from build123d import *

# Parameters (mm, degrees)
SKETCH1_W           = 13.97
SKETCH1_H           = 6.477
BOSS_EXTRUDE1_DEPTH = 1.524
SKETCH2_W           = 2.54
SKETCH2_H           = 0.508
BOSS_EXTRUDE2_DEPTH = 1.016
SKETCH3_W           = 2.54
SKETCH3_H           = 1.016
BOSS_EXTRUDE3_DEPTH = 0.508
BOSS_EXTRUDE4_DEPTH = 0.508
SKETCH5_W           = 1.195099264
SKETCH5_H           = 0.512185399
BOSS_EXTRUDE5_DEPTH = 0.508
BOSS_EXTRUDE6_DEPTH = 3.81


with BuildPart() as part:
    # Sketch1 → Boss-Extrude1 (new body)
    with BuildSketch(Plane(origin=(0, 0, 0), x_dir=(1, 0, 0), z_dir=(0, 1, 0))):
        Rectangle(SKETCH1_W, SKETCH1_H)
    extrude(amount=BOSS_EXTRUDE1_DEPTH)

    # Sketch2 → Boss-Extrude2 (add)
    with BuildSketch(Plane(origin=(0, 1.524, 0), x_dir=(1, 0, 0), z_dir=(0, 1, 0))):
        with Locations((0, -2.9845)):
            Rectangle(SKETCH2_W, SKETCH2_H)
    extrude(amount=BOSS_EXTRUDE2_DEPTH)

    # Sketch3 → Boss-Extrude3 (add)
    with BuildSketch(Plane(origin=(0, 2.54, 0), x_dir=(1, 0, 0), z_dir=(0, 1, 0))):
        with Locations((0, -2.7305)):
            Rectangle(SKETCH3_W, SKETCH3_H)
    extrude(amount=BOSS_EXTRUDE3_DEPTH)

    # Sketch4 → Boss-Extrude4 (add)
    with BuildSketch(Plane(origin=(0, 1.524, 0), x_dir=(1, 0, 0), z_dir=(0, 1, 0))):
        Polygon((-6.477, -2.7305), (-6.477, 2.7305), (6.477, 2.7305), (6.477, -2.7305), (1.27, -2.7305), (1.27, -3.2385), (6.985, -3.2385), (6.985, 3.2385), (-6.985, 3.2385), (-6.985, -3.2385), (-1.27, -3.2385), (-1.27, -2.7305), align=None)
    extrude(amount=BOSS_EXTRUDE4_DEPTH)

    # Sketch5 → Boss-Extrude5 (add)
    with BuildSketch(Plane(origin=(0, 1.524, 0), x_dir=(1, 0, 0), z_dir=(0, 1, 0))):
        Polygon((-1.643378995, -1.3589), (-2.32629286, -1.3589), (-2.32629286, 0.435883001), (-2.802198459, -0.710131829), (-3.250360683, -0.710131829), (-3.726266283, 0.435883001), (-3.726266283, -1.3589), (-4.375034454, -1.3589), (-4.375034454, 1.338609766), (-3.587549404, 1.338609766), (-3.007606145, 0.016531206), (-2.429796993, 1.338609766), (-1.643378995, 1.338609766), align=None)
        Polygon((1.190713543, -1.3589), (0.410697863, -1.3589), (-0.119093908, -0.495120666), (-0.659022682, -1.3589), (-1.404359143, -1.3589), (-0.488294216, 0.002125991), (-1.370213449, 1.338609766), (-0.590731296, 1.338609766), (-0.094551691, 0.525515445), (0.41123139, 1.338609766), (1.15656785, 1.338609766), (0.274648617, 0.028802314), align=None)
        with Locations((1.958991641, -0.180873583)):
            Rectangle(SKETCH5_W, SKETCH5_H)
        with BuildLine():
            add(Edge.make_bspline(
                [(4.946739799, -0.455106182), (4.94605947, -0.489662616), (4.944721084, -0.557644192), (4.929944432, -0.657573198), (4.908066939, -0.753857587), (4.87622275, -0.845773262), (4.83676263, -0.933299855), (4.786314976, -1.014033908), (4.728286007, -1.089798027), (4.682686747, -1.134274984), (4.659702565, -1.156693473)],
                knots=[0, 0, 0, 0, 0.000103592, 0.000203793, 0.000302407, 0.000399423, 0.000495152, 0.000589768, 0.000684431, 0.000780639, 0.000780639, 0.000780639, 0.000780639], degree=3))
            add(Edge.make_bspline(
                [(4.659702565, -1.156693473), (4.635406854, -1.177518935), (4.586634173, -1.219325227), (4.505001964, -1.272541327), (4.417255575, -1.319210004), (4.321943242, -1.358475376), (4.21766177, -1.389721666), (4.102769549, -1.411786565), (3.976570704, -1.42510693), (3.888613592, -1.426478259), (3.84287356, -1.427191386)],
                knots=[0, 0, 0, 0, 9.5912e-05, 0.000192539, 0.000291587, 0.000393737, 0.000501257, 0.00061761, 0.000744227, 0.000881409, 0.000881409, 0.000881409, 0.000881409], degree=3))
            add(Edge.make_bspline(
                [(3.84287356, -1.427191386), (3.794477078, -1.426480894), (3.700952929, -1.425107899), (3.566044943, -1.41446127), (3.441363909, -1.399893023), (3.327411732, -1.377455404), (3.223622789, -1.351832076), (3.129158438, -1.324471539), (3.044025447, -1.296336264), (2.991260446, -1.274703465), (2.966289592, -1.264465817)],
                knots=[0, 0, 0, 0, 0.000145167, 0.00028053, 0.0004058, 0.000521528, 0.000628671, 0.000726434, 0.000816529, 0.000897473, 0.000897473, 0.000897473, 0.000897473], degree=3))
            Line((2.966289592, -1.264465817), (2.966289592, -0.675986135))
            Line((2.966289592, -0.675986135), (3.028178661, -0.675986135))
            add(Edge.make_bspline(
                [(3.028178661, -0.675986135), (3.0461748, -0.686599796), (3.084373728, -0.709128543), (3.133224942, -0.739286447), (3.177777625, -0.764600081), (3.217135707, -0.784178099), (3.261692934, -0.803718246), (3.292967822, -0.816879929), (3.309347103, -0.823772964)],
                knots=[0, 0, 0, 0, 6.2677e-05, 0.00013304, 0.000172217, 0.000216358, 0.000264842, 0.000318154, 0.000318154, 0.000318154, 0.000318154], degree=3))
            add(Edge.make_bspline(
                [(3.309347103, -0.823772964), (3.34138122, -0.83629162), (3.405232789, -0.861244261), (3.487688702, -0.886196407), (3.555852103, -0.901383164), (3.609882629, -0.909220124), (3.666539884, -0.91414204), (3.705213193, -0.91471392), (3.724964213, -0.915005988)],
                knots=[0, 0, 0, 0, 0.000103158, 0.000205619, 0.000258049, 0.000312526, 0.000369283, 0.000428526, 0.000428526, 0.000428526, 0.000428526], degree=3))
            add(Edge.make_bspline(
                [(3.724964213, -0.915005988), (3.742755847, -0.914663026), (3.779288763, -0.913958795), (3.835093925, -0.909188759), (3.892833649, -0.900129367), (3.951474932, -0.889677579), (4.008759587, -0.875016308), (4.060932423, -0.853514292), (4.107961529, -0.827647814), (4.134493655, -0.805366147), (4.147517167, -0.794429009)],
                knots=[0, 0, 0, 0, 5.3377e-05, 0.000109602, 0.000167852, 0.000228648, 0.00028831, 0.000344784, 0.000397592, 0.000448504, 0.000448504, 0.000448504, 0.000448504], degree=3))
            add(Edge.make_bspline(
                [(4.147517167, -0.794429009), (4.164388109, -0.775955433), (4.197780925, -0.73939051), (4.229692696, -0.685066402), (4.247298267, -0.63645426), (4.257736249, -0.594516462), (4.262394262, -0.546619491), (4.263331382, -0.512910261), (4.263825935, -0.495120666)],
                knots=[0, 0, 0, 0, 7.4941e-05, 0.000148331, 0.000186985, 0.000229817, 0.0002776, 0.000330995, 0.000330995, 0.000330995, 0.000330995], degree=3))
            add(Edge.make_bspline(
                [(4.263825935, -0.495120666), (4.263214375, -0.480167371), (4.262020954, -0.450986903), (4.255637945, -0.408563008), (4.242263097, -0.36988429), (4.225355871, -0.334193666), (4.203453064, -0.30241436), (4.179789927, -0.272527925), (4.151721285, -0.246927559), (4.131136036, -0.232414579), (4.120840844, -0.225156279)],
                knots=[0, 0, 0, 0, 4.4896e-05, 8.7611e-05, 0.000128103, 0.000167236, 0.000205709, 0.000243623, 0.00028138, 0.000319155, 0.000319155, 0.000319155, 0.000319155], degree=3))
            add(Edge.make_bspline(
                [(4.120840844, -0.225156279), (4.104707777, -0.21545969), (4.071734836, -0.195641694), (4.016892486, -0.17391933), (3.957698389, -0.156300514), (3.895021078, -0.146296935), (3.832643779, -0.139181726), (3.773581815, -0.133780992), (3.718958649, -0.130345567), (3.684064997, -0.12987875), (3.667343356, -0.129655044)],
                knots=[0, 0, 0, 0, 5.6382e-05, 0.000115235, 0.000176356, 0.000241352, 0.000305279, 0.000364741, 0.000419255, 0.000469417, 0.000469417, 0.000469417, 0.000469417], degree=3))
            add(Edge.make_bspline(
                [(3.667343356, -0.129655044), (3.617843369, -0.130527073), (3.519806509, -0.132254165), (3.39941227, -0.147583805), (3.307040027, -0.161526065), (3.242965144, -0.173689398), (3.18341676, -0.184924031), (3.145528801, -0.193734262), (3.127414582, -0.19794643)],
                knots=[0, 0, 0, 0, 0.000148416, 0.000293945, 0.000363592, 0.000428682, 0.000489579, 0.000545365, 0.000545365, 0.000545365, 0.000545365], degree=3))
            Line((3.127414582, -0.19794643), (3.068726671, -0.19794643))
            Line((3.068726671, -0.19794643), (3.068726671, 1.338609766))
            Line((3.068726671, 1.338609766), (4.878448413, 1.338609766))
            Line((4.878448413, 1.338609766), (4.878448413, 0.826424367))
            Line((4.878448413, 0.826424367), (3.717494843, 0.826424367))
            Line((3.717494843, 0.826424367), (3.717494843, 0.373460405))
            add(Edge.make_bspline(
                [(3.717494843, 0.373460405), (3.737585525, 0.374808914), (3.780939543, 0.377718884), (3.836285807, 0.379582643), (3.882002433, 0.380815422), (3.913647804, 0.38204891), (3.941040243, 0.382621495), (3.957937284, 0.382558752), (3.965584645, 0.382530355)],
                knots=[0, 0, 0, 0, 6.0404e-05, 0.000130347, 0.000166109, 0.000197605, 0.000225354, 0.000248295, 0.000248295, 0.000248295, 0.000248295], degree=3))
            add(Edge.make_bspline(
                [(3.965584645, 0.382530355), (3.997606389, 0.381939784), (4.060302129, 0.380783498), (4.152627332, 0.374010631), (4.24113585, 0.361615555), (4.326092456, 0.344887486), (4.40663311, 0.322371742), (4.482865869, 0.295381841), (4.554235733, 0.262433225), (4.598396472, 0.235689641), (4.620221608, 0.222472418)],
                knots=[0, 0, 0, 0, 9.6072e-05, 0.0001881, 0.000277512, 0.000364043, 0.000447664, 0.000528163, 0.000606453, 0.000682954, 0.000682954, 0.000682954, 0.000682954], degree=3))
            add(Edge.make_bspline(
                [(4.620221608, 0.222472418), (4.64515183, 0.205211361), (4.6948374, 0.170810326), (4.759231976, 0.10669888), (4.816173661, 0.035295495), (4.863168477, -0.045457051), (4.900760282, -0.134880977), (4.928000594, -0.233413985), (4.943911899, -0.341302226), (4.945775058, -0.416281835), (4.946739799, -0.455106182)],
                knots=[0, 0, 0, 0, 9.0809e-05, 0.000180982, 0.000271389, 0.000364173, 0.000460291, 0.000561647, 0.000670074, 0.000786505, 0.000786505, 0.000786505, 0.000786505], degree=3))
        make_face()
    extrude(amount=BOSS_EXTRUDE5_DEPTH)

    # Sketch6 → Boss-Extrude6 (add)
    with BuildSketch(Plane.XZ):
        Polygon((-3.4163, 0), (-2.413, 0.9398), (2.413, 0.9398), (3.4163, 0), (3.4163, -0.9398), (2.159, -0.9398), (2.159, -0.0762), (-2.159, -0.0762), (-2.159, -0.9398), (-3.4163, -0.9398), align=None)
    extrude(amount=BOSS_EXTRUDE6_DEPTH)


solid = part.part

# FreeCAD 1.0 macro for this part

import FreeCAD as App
import Part
import Sketcher
from FreeCAD import Vector
Q = App.Units.Quantity

doc = App.newDocument("Part")
body = doc.addObject("PartDesign::Body", "Body")

# Sketch on XZ plane
sketch1 = doc.addObject("Sketcher::SketchObject", "Sketch")
body.addObject(sketch1)
sketch1.AttachmentSupport = (doc.XZ_Plane, [""])
sketch1.MapMode = "FlatFace"
sketch1.addGeometry([
    Part.LineSegment(Vector(-7, -3, 0), Vector(-7, 3, 0)),
    Part.LineSegment(Vector(-7, 3, 0), Vector(7, 3, 0)),
    Part.LineSegment(Vector(7, 3, 0), Vector(7, -3, 0)),
    Part.LineSegment(Vector(7, -3, 0), Vector(-7, -3, 0)),
], False)
sketch1.addConstraint([
    Sketcher.Constraint("Coincident", 0, 2, 1, 1),
    Sketcher.Constraint("Coincident", 1, 2, 2, 1),
    Sketcher.Constraint("Coincident", 2, 2, 3, 1),
    Sketcher.Constraint("Coincident", 3, 2, 0, 1),
    Sketcher.Constraint("Vertical", 0),
    Sketcher.Constraint("Horizontal", 1),
    Sketcher.Constraint("Vertical", 2),
    Sketcher.Constraint("Horizontal", 3),
    Sketcher.Constraint("Symmetric", 0, 2, 2, 2, -1, 1),
    Sketcher.Constraint("DistanceX", 1, 1, 1, 2, Q("0.55 in")),
    Sketcher.Constraint("DistanceY", 0, 1, 0, 2, Q("0.255 in")),
])
pad1 = doc.addObject("PartDesign::Pad", "Pad")
body.addObject(pad1)
pad1.Profile = sketch1
pad1.Length = Q("0.06 in")
pad1.Reversed = True

# Sketch on XZ plane
sketch2 = doc.addObject("Sketcher::SketchObject", "Sketch001")
body.addObject(sketch2)
sketch2.AttachmentSupport = (doc.XZ_Plane, [""])
sketch2.MapMode = "FlatFace"
sketch2.AttachmentOffset = App.Placement(Vector(0, 0, -0.06 * 25.4), App.Rotation())
sketch2.addGeometry([
    Part.LineSegment(Vector(-1.3, 2.7, 0), Vector(-1.3, 3.2, 0)),
    Part.LineSegment(Vector(-1.3, 3.2, 0), Vector(1.3, 3.2, 0)),
    Part.LineSegment(Vector(1.3, 3.2, 0), Vector(1.3, 2.7, 0)),
    Part.LineSegment(Vector(1.3, 2.7, 0), Vector(-1.3, 2.7, 0)),
], False)
sketch2.addConstraint([
    Sketcher.Constraint("Coincident", 0, 2, 1, 1),
    Sketcher.Constraint("Coincident", 1, 2, 2, 1),
    Sketcher.Constraint("Coincident", 2, 2, 3, 1),
    Sketcher.Constraint("Coincident", 3, 2, 0, 1),
    Sketcher.Constraint("Vertical", 0),
    Sketcher.Constraint("Horizontal", 1),
    Sketcher.Constraint("Vertical", 2),
    Sketcher.Constraint("Horizontal", 3),
    Sketcher.Constraint("DistanceX", 1, 1, 1, 2, Q("0.1 in")),
    Sketcher.Constraint("DistanceY", 0, 1, 0, 2, Q("0.02 in")),
    Sketcher.Constraint("DistanceX", 0, 2, -1, 1, Q("0.05 in")),
    Sketcher.Constraint("DistanceY", -1, 1, 0, 2, Q("0.1275 in")),
])
pad2 = doc.addObject("PartDesign::Pad", "Pad001")
body.addObject(pad2)
pad2.Profile = sketch2
pad2.Length = Q("0.04 in")
pad2.Reversed = True

# Sketch on XZ plane
sketch3 = doc.addObject("Sketcher::SketchObject", "Sketch002")
body.addObject(sketch3)
sketch3.AttachmentSupport = (doc.XZ_Plane, [""])
sketch3.MapMode = "FlatFace"
sketch3.AttachmentOffset = App.Placement(Vector(0, 0, -0.1 * 25.4), App.Rotation())
sketch3.addGeometry([
    Part.LineSegment(Vector(-1.3, 2.2, 0), Vector(-1.3, 3.2, 0)),
    Part.LineSegment(Vector(-1.3, 3.2, 0), Vector(1.3, 3.2, 0)),
    Part.LineSegment(Vector(1.3, 3.2, 0), Vector(1.3, 2.2, 0)),
    Part.LineSegment(Vector(1.3, 2.2, 0), Vector(-1.3, 2.2, 0)),
], False)
sketch3.addConstraint([
    Sketcher.Constraint("Coincident", 0, 2, 1, 1),
    Sketcher.Constraint("Coincident", 1, 2, 2, 1),
    Sketcher.Constraint("Coincident", 2, 2, 3, 1),
    Sketcher.Constraint("Coincident", 3, 2, 0, 1),
    Sketcher.Constraint("Vertical", 0),
    Sketcher.Constraint("Horizontal", 1),
    Sketcher.Constraint("Vertical", 2),
    Sketcher.Constraint("Horizontal", 3),
    Sketcher.Constraint("DistanceX", 1, 1, 1, 2, Q("0.1 in")),
    Sketcher.Constraint("DistanceY", 0, 1, 0, 2, Q("0.04 in")),
    Sketcher.Constraint("DistanceX", 0, 2, -1, 1, Q("0.05 in")),
    Sketcher.Constraint("DistanceY", -1, 1, 0, 2, Q("0.1275 in")),
])
pad3 = doc.addObject("PartDesign::Pad", "Pad002")
body.addObject(pad3)
pad3.Profile = sketch3
pad3.Length = Q("0.02 in")
pad3.Reversed = True

# Sketch on XZ plane
sketch4 = doc.addObject("Sketcher::SketchObject", "Sketch003")
body.addObject(sketch4)
sketch4.AttachmentSupport = (doc.XZ_Plane, [""])
sketch4.MapMode = "FlatFace"
sketch4.AttachmentOffset = App.Placement(Vector(0, 0, -0.06 * 25.4), App.Rotation())
sketch4.addGeometry([
    Part.LineSegment(Vector(-6.5, 2.7, 0), Vector(-6.5, -2.7, 0)),  # 0
    Part.LineSegment(Vector(-6.5, -2.7, 0), Vector(6.5, -2.7, 0)),  # 1
    Part.LineSegment(Vector(6.5, -2.7, 0), Vector(6.5, 2.7, 0)),  # 2
    Part.LineSegment(Vector(6.5, 2.7, 0), Vector(1.3, 2.7, 0)),  # 3
    Part.LineSegment(Vector(1.3, 2.7, 0), Vector(1.3, 3.2, 0)),  # 4
    Part.LineSegment(Vector(1.3, 3.2, 0), Vector(7, 3.2, 0)),  # 5
    Part.LineSegment(Vector(7, 3.2, 0), Vector(7, -3.2, 0)),  # 6
    Part.LineSegment(Vector(7, -3.2, 0), Vector(-7, -3.2, 0)),  # 7
    Part.LineSegment(Vector(-7, -3.2, 0), Vector(-7, 3.2, 0)),  # 8
    Part.LineSegment(Vector(-7, 3.2, 0), Vector(-1.3, 3.2, 0)),  # 9
    Part.LineSegment(Vector(-1.3, 3.2, 0), Vector(-1.3, 2.7, 0)),  # 10
    Part.LineSegment(Vector(-1.3, 2.7, 0), Vector(-6.5, 2.7, 0)),  # 11
], False)
sketch4.addConstraint([
    Sketcher.Constraint("Coincident", 0, 2, 1, 1),
    Sketcher.Constraint("Coincident", 1, 2, 2, 1),
    Sketcher.Constraint("Coincident", 2, 2, 3, 1),
    Sketcher.Constraint("Coincident", 3, 2, 4, 1),
    Sketcher.Constraint("Coincident", 4, 2, 5, 1),
    Sketcher.Constraint("Coincident", 5, 2, 6, 1),
    Sketcher.Constraint("Coincident", 6, 2, 7, 1),
    Sketcher.Constraint("Coincident", 7, 2, 8, 1),
    Sketcher.Constraint("Coincident", 8, 2, 9, 1),
    Sketcher.Constraint("Coincident", 9, 2, 10, 1),
    Sketcher.Constraint("Coincident", 10, 2, 11, 1),
    Sketcher.Constraint("Coincident", 11, 2, 0, 1),
    Sketcher.Constraint("Vertical", 0),
    Sketcher.Constraint("Horizontal", 1),
    Sketcher.Constraint("Vertical", 2),
    Sketcher.Constraint("Horizontal", 3),
    Sketcher.Constraint("Vertical", 4),
    Sketcher.Constraint("Horizontal", 5),
    Sketcher.Constraint("Vertical", 6),
    Sketcher.Constraint("Horizontal", 7),
    Sketcher.Constraint("Vertical", 8),
    Sketcher.Constraint("Horizontal", 9),
    Sketcher.Constraint("Vertical", 10),
    Sketcher.Constraint("Horizontal", 11),
    Sketcher.Constraint("Symmetric", 0, 2, 2, 2, -1, 1),
    Sketcher.Constraint("Symmetric", 5, 2, 7, 2, -1, 1),
    Sketcher.Constraint("Symmetric", 4, 2, 9, 2, -2),
    Sketcher.Constraint("Horizontal", 3, 2, 10, 2),
    Sketcher.Constraint("DistanceX", 1, 1, 1, 2, Q("0.51 in")),
    Sketcher.Constraint("DistanceX", 7, 2, 7, 1, Q("0.55 in")),
    Sketcher.Constraint("DistanceY", 4, 1, 4, 2, Q("0.02 in")),
    Sketcher.Constraint("DistanceX", 9, 2, 4, 2, Q("0.1 in")),
    Sketcher.Constraint("DistanceY", 0, 2, 0, 1, Q("0.215 in")),
])
pad4 = doc.addObject("PartDesign::Pad", "Pad003")
body.addObject(pad4)
pad4.Profile = sketch4
pad4.Length = Q("0.02 in")
pad4.Reversed = True

# Sketch on XZ plane
sketch5 = doc.addObject("Sketcher::SketchObject", "Sketch004")
body.addObject(sketch5)
sketch5.AttachmentSupport = (doc.XZ_Plane, [""])
sketch5.MapMode = "FlatFace"
sketch5.AttachmentOffset = App.Placement(Vector(0, 0, -0.06 * 25.4), App.Rotation())
sketch5.addGeometry([
    Part.LineSegment(Vector(-2.326293, 1.3589, 0), Vector(-1.643379, 1.3589, 0)),  # 0
    Part.LineSegment(Vector(-1.643379, 1.3589, 0), Vector(-1.643379, -1.33861, 0)),  # 1
    Part.LineSegment(Vector(-1.643379, -1.33861, 0), Vector(-2.429797, -1.33861, 0)),  # 2
    Part.LineSegment(Vector(-2.429797, -1.33861, 0), Vector(-3.007606, -0.016531, 0)),  # 3
    Part.LineSegment(Vector(-3.007606, -0.016531, 0), Vector(-3.587549, -1.33861, 0)),  # 4
    Part.LineSegment(Vector(-3.587549, -1.33861, 0), Vector(-4.375034, -1.33861, 0)),  # 5
    Part.LineSegment(Vector(-4.375034, -1.33861, 0), Vector(-4.375034, 1.3589, 0)),  # 6
    Part.LineSegment(Vector(-4.375034, 1.3589, 0), Vector(-3.726266, 1.3589, 0)),  # 7
    Part.LineSegment(Vector(-3.726266, 1.3589, 0), Vector(-3.726266, -0.435883, 0)),  # 8
    Part.LineSegment(Vector(-3.726266, -0.435883, 0), Vector(-3.250361, 0.710132, 0)),  # 9
    Part.LineSegment(Vector(-3.250361, 0.710132, 0), Vector(-2.802198, 0.710132, 0)),  # 10
    Part.LineSegment(Vector(-2.802198, 0.710132, 0), Vector(-2.326293, -0.435883, 0)),  # 11
    Part.LineSegment(Vector(-2.326293, -0.435883, 0), Vector(-2.326293, 1.3589, 0)),  # 12
    Part.LineSegment(Vector(0.410698, 1.3589, 0), Vector(1.190714, 1.3589, 0)),  # 13
    Part.LineSegment(Vector(1.190714, 1.3589, 0), Vector(0.274649, -0.028802, 0)),  # 14
    Part.LineSegment(Vector(0.274649, -0.028802, 0), Vector(1.156568, -1.33861, 0)),  # 15
    Part.LineSegment(Vector(1.156568, -1.33861, 0), Vector(0.411231, -1.33861, 0)),  # 16
    Part.LineSegment(Vector(0.411231, -1.33861, 0), Vector(-0.094552, -0.525515, 0)),  # 17
    Part.LineSegment(Vector(-0.094552, -0.525515, 0), Vector(-0.590731, -1.33861, 0)),  # 18
    Part.LineSegment(Vector(-0.590731, -1.33861, 0), Vector(-1.370213, -1.33861, 0)),  # 19
    Part.LineSegment(Vector(-1.370213, -1.33861, 0), Vector(-0.488294, -0.002126, 0)),  # 20
    Part.LineSegment(Vector(-0.488294, -0.002126, 0), Vector(-1.404359, 1.3589, 0)),  # 21
    Part.LineSegment(Vector(-1.404359, 1.3589, 0), Vector(-0.659023, 1.3589, 0)),  # 22
    Part.LineSegment(Vector(-0.659023, 1.3589, 0), Vector(-0.119094, 0.495121, 0)),  # 23
    Part.LineSegment(Vector(-0.119094, 0.495121, 0), Vector(0.410698, 1.3589, 0)),  # 24
    Part.LineSegment(Vector(1.361442, -0.075219, 0), Vector(1.361442, 0.436966, 0)),  # 25
    Part.LineSegment(Vector(1.361442, 0.436966, 0), Vector(2.556541, 0.436966, 0)),  # 26
    Part.LineSegment(Vector(2.556541, 0.436966, 0), Vector(2.556541, -0.075219, 0)),  # 27
    Part.LineSegment(Vector(2.556541, -0.075219, 0), Vector(1.361442, -0.075219, 0)),  # 28
    Part.BSplineCurve([Vector(4.94674, 0.455106, 0), Vector(4.946059, 0.489663, 0), Vector(4.944721, 0.557644, 0), Vector(4.929944, 0.657573, 0), Vector(4.908067, 0.753858, 0), Vector(4.876223, 0.845773, 0), Vector(4.836763, 0.9333, 0), Vector(4.786315, 1.014034, 0), Vector(4.728286, 1.089798, 0), Vector(4.682687, 1.134275, 0), Vector(4.659703, 1.156693, 0)], [4, 1, 1, 1, 1, 1, 1, 1, 4], [0, 0.000103592, 0.000203793, 0.000302407, 0.000399423, 0.000495152, 0.000589768, 0.000684431, 0.000780639], False, 3, [1, 1, 1, 1, 1, 1, 1, 1, 1, 1, 1], False),  # 29
    Part.BSplineCurve([Vector(4.620222, -0.222472, 0), Vector(4.645152, -0.205211, 0), Vector(4.694837, -0.17081, 0), Vector(4.759232, -0.106699, 0), Vector(4.816174, -0.035295, 0), Vector(4.863168, 0.045457, 0), Vector(4.90076, 0.134881, 0), Vector(4.928001, 0.233414, 0), Vector(4.943912, 0.341302, 0), Vector(4.945775, 0.416282, 0), Vector(4.94674, 0.455106, 0)], [4, 1, 1, 1, 1, 1, 1, 1, 4], [0, 0.000090809, 0.000180982, 0.000271389, 0.000364173, 0.000460291, 0.000561647, 0.000670074, 0.000786505], False, 3, [1, 1, 1, 1, 1, 1, 1, 1, 1, 1, 1], False),  # 30
    Part.BSplineCurve([Vector(3.965585, -0.38253, 0), Vector(3.997606, -0.38194, 0), Vector(4.060302, -0.380783, 0), Vector(4.152627, -0.374011, 0), Vector(4.241136, -0.361616, 0), Vector(4.326092, -0.344887, 0), Vector(4.406633, -0.322372, 0), Vector(4.482866, -0.295382, 0), Vector(4.554236, -0.262433, 0), Vector(4.598396, -0.23569, 0), Vector(4.620222, -0.222472, 0)], [4, 1, 1, 1, 1, 1, 1, 1, 4], [0, 0.000096072, 0.0001881, 0.000277512, 0.000364043, 0.000447664, 0.000528163, 0.000606453, 0.000682954], False, 3, [1, 1, 1, 1, 1, 1, 1, 1, 1, 1, 1], False),  # 31
    Part.BSplineCurve([Vector(3.717495, -0.37346, 0), Vector(3.737586, -0.374809, 0), Vector(3.78094, -0.377719, 0), Vector(3.836286, -0.379583, 0), Vector(3.882002, -0.380815, 0), Vector(3.913648, -0.382049, 0), Vector(3.94104, -0.382621, 0), Vector(3.957937, -0.382559, 0), Vector(3.965585, -0.38253, 0)], [4, 1, 1, 1, 1, 1, 4], [0, 0.000060404, 0.000130347, 0.000166109, 0.000197605, 0.000225354, 0.000248295], False, 3, [1, 1, 1, 1, 1, 1, 1, 1, 1], False),  # 32
    Part.LineSegment(Vector(3.717495, -0.37346, 0), Vector(3.717495, -0.826424, 0)),  # 33
    Part.LineSegment(Vector(3.717495, -0.826424, 0), Vector(4.878448, -0.826424, 0)),  # 34
    Part.LineSegment(Vector(4.878448, -0.826424, 0), Vector(4.878448, -1.33861, 0)),  # 35
    Part.LineSegment(Vector(4.878448, -1.33861, 0), Vector(3.068727, -1.33861, 0)),  # 36
    Part.LineSegment(Vector(3.068727, -1.33861, 0), Vector(3.068727, 0.197946, 0)),  # 37
    Part.LineSegment(Vector(3.068727, 0.197946, 0), Vector(3.127415, 0.197946, 0)),  # 38
    Part.BSplineCurve([Vector(3.667343, 0.129655, 0), Vector(3.617843, 0.130527, 0), Vector(3.519807, 0.132254, 0), Vector(3.399412, 0.147584, 0), Vector(3.30704, 0.161526, 0), Vector(3.242965, 0.173689, 0), Vector(3.183417, 0.184924, 0), Vector(3.145529, 0.193734, 0), Vector(3.127415, 0.197946, 0)], [4, 1, 1, 1, 1, 1, 4], [0, 0.000148416, 0.000293945, 0.000363592, 0.000428682, 0.000489579, 0.000545365], False, 3, [1, 1, 1, 1, 1, 1, 1, 1, 1], False),  # 39
    Part.BSplineCurve([Vector(4.120841, 0.225156, 0), Vector(4.104708, 0.21546, 0), Vector(4.071735, 0.195642, 0), Vector(4.016892, 0.173919, 0), Vector(3.957698, 0.156301, 0), Vector(3.895021, 0.146297, 0), Vector(3.832644, 0.139182, 0), Vector(3.773582, 0.133781, 0), Vector(3.718959, 0.130346, 0), Vector(3.684065, 0.129879, 0), Vector(3.667343, 0.129655, 0)], [4, 1, 1, 1, 1, 1, 1, 1, 4], [0, 0.000056382, 0.000115235, 0.000176356, 0.000241352, 0.000305279, 0.000364741, 0.000419255, 0.000469417], False, 3, [1, 1, 1, 1, 1, 1, 1, 1, 1, 1, 1], False),  # 40
    Part.BSplineCurve([Vector(4.263826, 0.495121, 0), Vector(4.263214, 0.480167, 0), Vector(4.262021, 0.450987, 0), Vector(4.255638, 0.408563, 0), Vector(4.242263, 0.369884, 0), Vector(4.225356, 0.334194, 0), Vector(4.203453, 0.302414, 0), Vector(4.17979, 0.272528, 0), Vector(4.151721, 0.246928, 0), Vector(4.131136, 0.232415, 0), Vector(4.120841, 0.225156, 0)], [4, 1, 1, 1, 1, 1, 1, 1, 4], [0, 0.000044896, 0.000087611, 0.000128103, 0.000167236, 0.000205709, 0.000243623, 0.00028138, 0.000319155], False, 3, [1, 1, 1, 1, 1, 1, 1, 1, 1, 1, 1], False),  # 41
    Part.BSplineCurve([Vector(4.147517, 0.794429, 0), Vector(4.164388, 0.775955, 0), Vector(4.197781, 0.739391, 0), Vector(4.229693, 0.685066, 0), Vector(4.247298, 0.636454, 0), Vector(4.257736, 0.594516, 0), Vector(4.262394, 0.546619, 0), Vector(4.263331, 0.51291, 0), Vector(4.263826, 0.495121, 0)], [4, 1, 1, 1, 1, 1, 4], [0, 0.000074941, 0.000148331, 0.000186985, 0.000229817, 0.0002776, 0.000330995], False, 3, [1, 1, 1, 1, 1, 1, 1, 1, 1], False),  # 42
    Part.BSplineCurve([Vector(3.724964, 0.915006, 0), Vector(3.742756, 0.914663, 0), Vector(3.779289, 0.913959, 0), Vector(3.835094, 0.909189, 0), Vector(3.892834, 0.900129, 0), Vector(3.951475, 0.889678, 0), Vector(4.00876, 0.875016, 0), Vector(4.060932, 0.853514, 0), Vector(4.107962, 0.827648, 0), Vector(4.134494, 0.805366, 0), Vector(4.147517, 0.794429, 0)], [4, 1, 1, 1, 1, 1, 1, 1, 4], [0, 0.000053377, 0.000109602, 0.000167852, 0.000228648, 0.00028831, 0.000344784, 0.000397592, 0.000448504], False, 3, [1, 1, 1, 1, 1, 1, 1, 1, 1, 1, 1], False),  # 43
    Part.BSplineCurve([Vector(3.309347, 0.823773, 0), Vector(3.341381, 0.836292, 0), Vector(3.405233, 0.861244, 0), Vector(3.487689, 0.886196, 0), Vector(3.555852, 0.901383, 0), Vector(3.609883, 0.90922, 0), Vector(3.66654, 0.914142, 0), Vector(3.705213, 0.914714, 0), Vector(3.724964, 0.915006, 0)], [4, 1, 1, 1, 1, 1, 4], [0, 0.000103158, 0.000205619, 0.000258049, 0.000312526, 0.000369283, 0.000428526], False, 3, [1, 1, 1, 1, 1, 1, 1, 1, 1], False),  # 44
    Part.BSplineCurve([Vector(3.028179, 0.675986, 0), Vector(3.046175, 0.6866, 0), Vector(3.084374, 0.709129, 0), Vector(3.133225, 0.739286, 0), Vector(3.177778, 0.7646, 0), Vector(3.217136, 0.784178, 0), Vector(3.261693, 0.803718, 0), Vector(3.292968, 0.81688, 0), Vector(3.309347, 0.823773, 0)], [4, 1, 1, 1, 1, 1, 4], [0, 0.000062677, 0.00013304, 0.000172217, 0.000216358, 0.000264842, 0.000318154], False, 3, [1, 1, 1, 1, 1, 1, 1, 1, 1], False),  # 45
    Part.LineSegment(Vector(3.028179, 0.675986, 0), Vector(2.96629, 0.675986, 0)),  # 46
    Part.LineSegment(Vector(2.96629, 0.675986, 0), Vector(2.96629, 1.264466, 0)),  # 47
    Part.BSplineCurve([Vector(3.842874, 1.427191, 0), Vector(3.794477, 1.426481, 0), Vector(3.700953, 1.425108, 0), Vector(3.566045, 1.414461, 0), Vector(3.441364, 1.399893, 0), Vector(3.327412, 1.377455, 0), Vector(3.223623, 1.351832, 0), Vector(3.129158, 1.324472, 0), Vector(3.044025, 1.296336, 0), Vector(2.99126, 1.274703, 0), Vector(2.96629, 1.264466, 0)], [4, 1, 1, 1, 1, 1, 1, 1, 4], [0, 0.000145167, 0.00028053, 0.0004058, 0.000521528, 0.000628671, 0.000726434, 0.000816529, 0.000897473], False, 3, [1, 1, 1, 1, 1, 1, 1, 1, 1, 1, 1], False),  # 48
    Part.BSplineCurve([Vector(4.659703, 1.156693, 0), Vector(4.635407, 1.177519, 0), Vector(4.586634, 1.219325, 0), Vector(4.505002, 1.272541, 0), Vector(4.417256, 1.31921, 0), Vector(4.321943, 1.358475, 0), Vector(4.217662, 1.389722, 0), Vector(4.10277, 1.411787, 0), Vector(3.976571, 1.425107, 0), Vector(3.888614, 1.426478, 0), Vector(3.842874, 1.427191, 0)], [4, 1, 1, 1, 1, 1, 1, 1, 4], [0, 0.000095912, 0.000192539, 0.000291587, 0.000393737, 0.000501257, 0.00061761, 0.000744227, 0.000881409], False, 3, [1, 1, 1, 1, 1, 1, 1, 1, 1, 1, 1], False),  # 49
], False)
sketch5.addConstraint([
    Sketcher.Constraint("Block", 29),
    Sketcher.Constraint("Block", 30),
    Sketcher.Constraint("Block", 31),
    Sketcher.Constraint("Block", 32),
    Sketcher.Constraint("Block", 39),
    Sketcher.Constraint("Block", 40),
    Sketcher.Constraint("Block", 41),
    Sketcher.Constraint("Block", 42),
    Sketcher.Constraint("Block", 43),
    Sketcher.Constraint("Block", 44),
    Sketcher.Constraint("Block", 45),
    Sketcher.Constraint("Block", 48),
    Sketcher.Constraint("Block", 49),
    Sketcher.Constraint("Coincident", 0, 2, 1, 1),
    Sketcher.Constraint("Coincident", 1, 2, 2, 1),
    Sketcher.Constraint("Coincident", 2, 2, 3, 1),
    Sketcher.Constraint("Coincident", 3, 2, 4, 1),
    Sketcher.Constraint("Coincident", 4, 2, 5, 1),
    Sketcher.Constraint("Coincident", 5, 2, 6, 1),
    Sketcher.Constraint("Coincident", 6, 2, 7, 1),
    Sketcher.Constraint("Coincident", 7, 2, 8, 1),
    Sketcher.Constraint("Coincident", 8, 2, 9, 1),
    Sketcher.Constraint("Coincident", 9, 2, 10, 1),
    Sketcher.Constraint("Coincident", 10, 2, 11, 1),
    Sketcher.Constraint("Coincident", 11, 2, 12, 1),
    Sketcher.Constraint("Coincident", 12, 2, 0, 1),
    Sketcher.Constraint("Coincident", 13, 2, 14, 1),
    Sketcher.Constraint("Coincident", 14, 2, 15, 1),
    Sketcher.Constraint("Coincident", 15, 2, 16, 1),
    Sketcher.Constraint("Coincident", 16, 2, 17, 1),
    Sketcher.Constraint("Coincident", 17, 2, 18, 1),
    Sketcher.Constraint("Coincident", 18, 2, 19, 1),
    Sketcher.Constraint("Coincident", 19, 2, 20, 1),
    Sketcher.Constraint("Coincident", 20, 2, 21, 1),
    Sketcher.Constraint("Coincident", 21, 2, 22, 1),
    Sketcher.Constraint("Coincident", 22, 2, 23, 1),
    Sketcher.Constraint("Coincident", 23, 2, 24, 1),
    Sketcher.Constraint("Coincident", 24, 2, 13, 1),
    Sketcher.Constraint("Coincident", 25, 2, 26, 1),
    Sketcher.Constraint("Coincident", 26, 2, 27, 1),
    Sketcher.Constraint("Coincident", 27, 2, 28, 1),
    Sketcher.Constraint("Coincident", 28, 2, 25, 1),
    Sketcher.Constraint("Coincident", 32, 1, 33, 1),
    Sketcher.Constraint("Coincident", 33, 2, 34, 1),
    Sketcher.Constraint("Coincident", 34, 2, 35, 1),
    Sketcher.Constraint("Coincident", 35, 2, 36, 1),
    Sketcher.Constraint("Coincident", 36, 2, 37, 1),
    Sketcher.Constraint("Coincident", 37, 2, 38, 1),
    Sketcher.Constraint("Coincident", 38, 2, 39, 2),
    Sketcher.Constraint("Coincident", 45, 1, 46, 1),
    Sketcher.Constraint("Coincident", 46, 2, 47, 1),
    Sketcher.Constraint("Coincident", 47, 2, 48, 2),
    Sketcher.Constraint("Horizontal", 0),
    Sketcher.Constraint("Vertical", 1),
    Sketcher.Constraint("Horizontal", 2),
    Sketcher.Constraint("Horizontal", 5),
    Sketcher.Constraint("Vertical", 6),
    Sketcher.Constraint("Horizontal", 7),
    Sketcher.Constraint("Vertical", 8),
    Sketcher.Constraint("Horizontal", 10),
    Sketcher.Constraint("Vertical", 12),
    Sketcher.Constraint("Horizontal", 13),
    Sketcher.Constraint("Horizontal", 16),
    Sketcher.Constraint("Horizontal", 19),
    Sketcher.Constraint("Horizontal", 22),
    Sketcher.Constraint("Vertical", 25),
    Sketcher.Constraint("Horizontal", 26),
    Sketcher.Constraint("Vertical", 27),
    Sketcher.Constraint("Horizontal", 28),
    Sketcher.Constraint("Vertical", 33),
    Sketcher.Constraint("Horizontal", 34),
    Sketcher.Constraint("Vertical", 35),
    Sketcher.Constraint("Horizontal", 36),
    Sketcher.Constraint("Vertical", 37),
    Sketcher.Constraint("Horizontal", 38),
    Sketcher.Constraint("Horizontal", 46),
    Sketcher.Constraint("Vertical", 47),
    Sketcher.Constraint("Horizontal", 2, 2, 4, 2),
    Sketcher.Constraint("Horizontal", 0, 2, 6, 2),
    Sketcher.Constraint("Horizontal", 8, 2, 11, 2),
    Sketcher.Constraint("Horizontal", 12, 2, 13, 2),
    Sketcher.Constraint("Horizontal", 5, 2, 15, 2),
    Sketcher.Constraint("Horizontal", 16, 2, 18, 2),
    Sketcher.Constraint("Horizontal", 13, 2, 21, 2),
    Sketcher.Constraint("Horizontal", 19, 2, 35, 2),
    Sketcher.Constraint("Equal", 16, 22),
    Sketcher.Constraint("Equal", 27, 35),
    Sketcher.Constraint("Equal", 9, 11),
    Sketcher.Constraint("DistanceX", 26, 1, 26, 2, Q("1.195099 mm")),
    Sketcher.Constraint("DistanceX", 0, 2, -1, 1, Q("0.0647 in")),
    Sketcher.Constraint("DistanceY", -1, 1, 0, 2, Q("0.0535 in")),
    Sketcher.Constraint("DistanceX", -1, 1, 25, 2, Q("0.0536001 in")),
    Sketcher.Constraint("Distance", 9, Q("1.240901 mm")),
    Sketcher.Constraint("Distance", 21, Q("1.640599 mm")),
    Sketcher.Constraint("DistanceX", 7, 1, 7, 2, Q("0.648768 mm")),
    Sketcher.Constraint("DistanceX", 36, 2, 36, 1, Q("1.809722 mm")),
    Sketcher.Constraint("DistanceY", 1, 2, 1, 1, Q("2.69751 mm")),
    Sketcher.Constraint("DistanceX", 10, 2, -1, 1, Q("2.802198 mm")),
    Sketcher.Constraint("DistanceX", 17, 2, 14, 2, Q("0.3692 mm")),
    Sketcher.Constraint("DistanceX", 18, 2, 15, 2, Q("1.747299 mm")),
    Sketcher.Constraint("DistanceX", 9, 2, 21, 2, Q("1.846002 mm")),
    Sketcher.Constraint("DistanceX", 20, 2, 23, 2, Q("0.3692 mm")),
    Sketcher.Constraint("DistanceY", 26, 2, 47, 2, Q("0.8275 mm")),
    Sketcher.Constraint("Distance", 3, Q("1.442829 mm")),
    Sketcher.Constraint("Distance", 17, Q("0.957569 mm")),
    Sketcher.Constraint("Distance", 18, Q("0.952532 mm")),
    Sketcher.Constraint("Distance", 20, Q("1.60124 mm")),
    Sketcher.Constraint("Distance", 24, Q("1.013308 mm")),
    Sketcher.Constraint("DistanceX", 0, 1, 0, 2, Q("0.682914 mm")),
    Sketcher.Constraint("DistanceX", 2, 2, 2, 1, Q("0.786418 mm")),
    Sketcher.Constraint("DistanceX", 5, 2, 5, 1, Q("0.787485 mm")),
    Sketcher.Constraint("DistanceX", 10, 1, 10, 2, Q("0.448162 mm")),
    Sketcher.Constraint("DistanceX", 13, 1, 13, 2, Q("0.780016 mm")),
    Sketcher.Constraint("DistanceX", 16, 2, 16, 1, Q("0.745336 mm")),
    Sketcher.Constraint("DistanceX", 19, 2, 19, 1, Q("0.779482 mm")),
    Sketcher.Constraint("DistanceX", 34, 1, 34, 2, Q("1.160954 mm")),
    Sketcher.Constraint("DistanceY", 8, 2, 8, 1, Q("1.794783 mm")),
    Sketcher.Constraint("DistanceY", 25, 1, 25, 2, Q("0.512185 mm")),
    Sketcher.Constraint("DistanceY", 3, 2, -1, 1, Q("0.016531 mm")),
    Sketcher.Constraint("DistanceX", -1, 1, 14, 2, Q("0.274649 mm")),
    Sketcher.Constraint("DistanceY", -1, 1, 23, 2, Q("0.495121 mm")),
    Sketcher.Constraint("DistanceY", 11, 2, 14, 2, Q("0.407081 mm")),
])
pad5 = doc.addObject("PartDesign::Pad", "Pad004")
body.addObject(pad5)
pad5.Profile = sketch5
pad5.Length = Q("0.02 in")
pad5.Reversed = True

# Sketch on XZ plane
sketch6 = doc.addObject("Sketcher::SketchObject", "Sketch005")
body.addObject(sketch6)
sketch6.AttachmentSupport = (doc.XZ_Plane, [""])
sketch6.MapMode = "FlatFace"
sketch6.addGeometry([
    Part.LineSegment(Vector(-2.4, 0.9, 0), Vector(-3.4, 0, 0)),  # 0
    Part.LineSegment(Vector(-3.4, 0, 0), Vector(-3.4, -0.9, 0)),  # 1
    Part.LineSegment(Vector(-3.4, -0.9, 0), Vector(-2.2, -0.9, 0)),  # 2
    Part.LineSegment(Vector(-2.2, -0.9, 0), Vector(-2.2, -0.1, 0)),  # 3
    Part.LineSegment(Vector(-2.2, -0.1, 0), Vector(2.2, -0.1, 0)),  # 4
    Part.LineSegment(Vector(2.2, -0.1, 0), Vector(2.2, -0.9, 0)),  # 5
    Part.LineSegment(Vector(2.2, -0.9, 0), Vector(3.4, -0.9, 0)),  # 6
    Part.LineSegment(Vector(3.4, -0.9, 0), Vector(3.4, 0, 0)),  # 7
    Part.LineSegment(Vector(3.4, 0, 0), Vector(2.4, 0.9, 0)),  # 8
    Part.LineSegment(Vector(2.4, 0.9, 0), Vector(-2.4, 0.9, 0)),  # 9
], False)
sketch6.addConstraint([
    Sketcher.Constraint("Coincident", 0, 2, 1, 1),
    Sketcher.Constraint("Coincident", 1, 2, 2, 1),
    Sketcher.Constraint("Coincident", 2, 2, 3, 1),
    Sketcher.Constraint("Coincident", 3, 2, 4, 1),
    Sketcher.Constraint("Coincident", 4, 2, 5, 1),
    Sketcher.Constraint("Coincident", 5, 2, 6, 1),
    Sketcher.Constraint("Coincident", 6, 2, 7, 1),
    Sketcher.Constraint("Coincident", 7, 2, 8, 1),
    Sketcher.Constraint("Coincident", 8, 2, 9, 1),
    Sketcher.Constraint("Coincident", 9, 2, 0, 1),
    Sketcher.Constraint("Vertical", 1),
    Sketcher.Constraint("Horizontal", 2),
    Sketcher.Constraint("Vertical", 3),
    Sketcher.Constraint("Horizontal", 4),
    Sketcher.Constraint("Vertical", 5),
    Sketcher.Constraint("Horizontal", 6),
    Sketcher.Constraint("Vertical", 7),
    Sketcher.Constraint("Horizontal", 9),
    Sketcher.Constraint("Symmetric", 0, 2, 7, 2, -1, 1),
    Sketcher.Constraint("Symmetric", 2, 2, 5, 2, -2),
    Sketcher.Constraint("PointOnObject", 0, 2, -1),
    Sketcher.Constraint("Equal", 0, 8),
    Sketcher.Constraint("DistanceX", 4, 1, 4, 2, Q("0.17 in")),
    Sketcher.Constraint("DistanceX", 9, 2, 9, 1, Q("0.19 in")),
    Sketcher.Constraint("DistanceY", 1, 2, 1, 1, Q("0.037 in")),
    Sketcher.Constraint("DistanceY", 3, 1, 3, 2, Q("0.034 in")),
    Sketcher.Constraint("DistanceY", 4, 2, 8, 2, Q("0.04 in")),
    Sketcher.Constraint("DistanceX", 2, 1, 2, 2, Q("0.0495 in")),
])
pad6 = doc.addObject("PartDesign::Pad", "Pad005")
body.addObject(pad6)
pad6.Profile = sketch6
pad6.Length = Q("0.15 in")

doc.recompute()
